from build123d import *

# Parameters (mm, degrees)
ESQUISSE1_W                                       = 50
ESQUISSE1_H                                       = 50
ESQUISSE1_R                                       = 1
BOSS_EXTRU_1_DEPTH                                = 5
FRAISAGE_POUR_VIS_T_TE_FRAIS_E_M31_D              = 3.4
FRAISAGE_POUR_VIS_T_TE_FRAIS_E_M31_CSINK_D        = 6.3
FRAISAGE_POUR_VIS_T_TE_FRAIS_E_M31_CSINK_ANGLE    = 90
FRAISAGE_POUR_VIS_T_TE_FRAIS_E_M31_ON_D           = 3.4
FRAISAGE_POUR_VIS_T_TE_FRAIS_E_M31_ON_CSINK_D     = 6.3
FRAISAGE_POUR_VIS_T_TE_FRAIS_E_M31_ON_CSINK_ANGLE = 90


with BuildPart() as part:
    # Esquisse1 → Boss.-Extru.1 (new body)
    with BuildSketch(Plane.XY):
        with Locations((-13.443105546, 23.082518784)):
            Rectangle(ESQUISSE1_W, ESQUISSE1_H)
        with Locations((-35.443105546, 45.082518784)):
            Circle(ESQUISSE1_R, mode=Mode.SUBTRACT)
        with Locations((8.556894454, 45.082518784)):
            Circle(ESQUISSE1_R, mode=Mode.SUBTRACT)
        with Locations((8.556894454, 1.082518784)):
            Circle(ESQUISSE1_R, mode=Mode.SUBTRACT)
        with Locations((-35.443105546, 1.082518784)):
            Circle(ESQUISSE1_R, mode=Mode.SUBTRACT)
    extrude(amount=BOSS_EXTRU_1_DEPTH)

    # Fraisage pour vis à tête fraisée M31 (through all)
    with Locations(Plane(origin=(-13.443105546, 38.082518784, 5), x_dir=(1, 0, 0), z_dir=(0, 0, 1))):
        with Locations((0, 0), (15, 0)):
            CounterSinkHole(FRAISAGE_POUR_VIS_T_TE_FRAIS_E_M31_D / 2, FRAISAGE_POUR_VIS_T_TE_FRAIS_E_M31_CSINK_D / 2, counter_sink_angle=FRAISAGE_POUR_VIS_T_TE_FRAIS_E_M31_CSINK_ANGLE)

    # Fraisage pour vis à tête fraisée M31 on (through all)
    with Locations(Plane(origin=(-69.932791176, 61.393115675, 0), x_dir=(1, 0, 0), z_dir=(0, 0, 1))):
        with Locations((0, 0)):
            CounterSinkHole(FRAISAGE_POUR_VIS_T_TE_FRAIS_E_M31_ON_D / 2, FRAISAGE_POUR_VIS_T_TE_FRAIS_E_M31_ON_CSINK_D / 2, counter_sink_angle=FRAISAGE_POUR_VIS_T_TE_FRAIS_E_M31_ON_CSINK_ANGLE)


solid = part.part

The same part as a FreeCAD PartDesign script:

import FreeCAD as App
import Part
import Sketcher

V = App.Vector
Q = App.Units.Quantity

doc = App.newDocument("Part")
body = doc.addObject("PartDesign::Body", "Body")

sketch1 = body.newObject("Sketcher::SketchObject", "Sketch")
sketch1.AttachmentSupport = (doc.getObject("XY_Plane"), [""])
sketch1.MapMode = "FlatFace"
sketch1.addGeometry([
    Part.LineSegment(V(-38.4, 48.1, 0), V(-38.4, -1.9, 0)),
    Part.LineSegment(V(-38.4, -1.9, 0), V(11.6, -1.9, 0)),
    Part.LineSegment(V(11.6, -1.9, 0), V(11.6, 48.1, 0)),
    Part.LineSegment(V(11.6, 48.1, 0), V(-38.4, 48.1, 0)),
    Part.Circle(V(-35.4, 1.1, 0), V(0, 0, 1), 1),
    Part.Circle(V(8.6, 1.1, 0), V(0, 0, 1), 1),
    Part.Circle(V(-35.4, 45.1, 0), V(0, 0, 1), 1),
    Part.Circle(V(8.6, 45.1, 0), V(0, 0, 1), 1),
], False)
sketch1.addConstraint([
    Sketcher.Constraint("Coincident", 0, 2, 1, 1),
    Sketcher.Constraint("Coincident", 1, 2, 2, 1),
    Sketcher.Constraint("Coincident", 2, 2, 3, 1),
    Sketcher.Constraint("Coincident", 3, 2, 0, 1),
    Sketcher.Constraint("Vertical", 0),
    Sketcher.Constraint("Horizontal", 1),
    Sketcher.Constraint("Vertical", 2),
    Sketcher.Constraint("Horizontal", 3),
    Sketcher.Constraint("Equal", 4, 5),
    Sketcher.Constraint("Equal", 5, 6),
    Sketcher.Constraint("Equal", 6, 7),
    Sketcher.Constraint("Horizontal", 4, 3, 5, 3),
    Sketcher.Constraint("Horizontal", 6, 3, 7, 3),
    Sketcher.Constraint("Vertical", 4, 3, 6, 3),
    Sketcher.Constraint("Vertical", 5, 3, 7, 3),
    Sketcher.Constraint("Equal", 3, 0),
    Sketcher.Constraint("Diameter", 4, Q("2 mm")),
    Sketcher.Constraint("DistanceX", 1, 1, 1, 2, Q("50 mm")),
    Sketcher.Constraint("DistanceX", 4, 3, 5, 3, Q("44 mm")),
    Sketcher.Constraint("DistanceY", 4, 3, 6, 3, Q("44 mm")),
    Sketcher.Constraint("DistanceX", 0, 2, 4, 3, Q("3 mm")),
    Sketcher.Constraint("DistanceY", 0, 2, 4, 3, Q("3 mm")),
    Sketcher.Constraint("DistanceY", -1, 1, 4, 3, Q("1.082519 mm")),
    Sketcher.Constraint("DistanceX", 4, 3, -1, 1, Q("35.443106 mm")),
])
pad1 = body.newObject("PartDesign::Pad", "Pad")
pad1.Profile = sketch1
pad1.Length = 5

sketch2 = body.newObject("Sketcher::SketchObject", "Sketch001")
sketch2.AttachmentSupport = (doc.getObject("XY_Plane"), [""])
sketch2.MapMode = "FlatFace"
sketch2.AttachmentOffset = App.Placement(V(0, 0, 5), App.Rotation())
sketch2.addGeometry([
    Part.Circle(V(-13.4, 38.1, 0), V(0, 0, 1), 1.7),
    Part.Circle(V(1.6, 38.1, 0), V(0, 0, 1), 1.7),
], False)
sketch2.addConstraint([
    Sketcher.Constraint("Equal", 0, 1),
    Sketcher.Constraint("Horizontal", 0, 3, 1, 3),
    Sketcher.Constraint("Diameter", 0, Q("3.4 mm")),
    Sketcher.Constraint("DistanceX", 0, 3, 1, 3, Q("15 mm")),
    Sketcher.Constraint("DistanceY", -1, 1, 0, 3, Q("38.082519 mm")),
    Sketcher.Constraint("DistanceX", 0, 3, -1, 1, Q("13.443106 mm")),
])
doc.recompute()
hole = body.newObject("PartDesign::Hole", "Hole")
hole.Profile = sketch2
hole.ThreadType = "None"
hole.Diameter = 3.4
hole.DepthType = "ThroughAll"
hole.HoleCutType = "Countersink"
hole.HoleCutDiameter = 6.3
hole.HoleCutCountersinkAngle = 90

sketch3 = body.newObject("Sketcher::SketchObject", "Sketch002")
sketch3.AttachmentSupport = (doc.getObject("XY_Plane"), [""])
sketch3.MapMode = "FlatFace"
sketch3.addGeometry(Part.Circle(V(-69.9, 61.4, 0), V(0, 0, 1), 1.7), False)
sketch3.addConstraint([
    Sketcher.Constraint("Diameter", 0, Q("3.4 mm")),
    Sketcher.Constraint("DistanceX", 0, 3, -1, 1, Q("69.932791 mm")),
    Sketcher.Constraint("DistanceY", -1, 1, 0, 3, Q("61.393116 mm")),
])
doc.recompute()
hole2 = body.newObject("PartDesign::Hole", "Hole001")
hole2.Profile = sketch3
hole2.ThreadType = "None"
hole2.Diameter = 3.4
hole2.DepthType = "ThroughAll"
hole2.HoleCutType = "Countersink"
hole2.HoleCutDiameter = 6.3
hole2.HoleCutCountersinkAngle = 90

doc.recompute()
